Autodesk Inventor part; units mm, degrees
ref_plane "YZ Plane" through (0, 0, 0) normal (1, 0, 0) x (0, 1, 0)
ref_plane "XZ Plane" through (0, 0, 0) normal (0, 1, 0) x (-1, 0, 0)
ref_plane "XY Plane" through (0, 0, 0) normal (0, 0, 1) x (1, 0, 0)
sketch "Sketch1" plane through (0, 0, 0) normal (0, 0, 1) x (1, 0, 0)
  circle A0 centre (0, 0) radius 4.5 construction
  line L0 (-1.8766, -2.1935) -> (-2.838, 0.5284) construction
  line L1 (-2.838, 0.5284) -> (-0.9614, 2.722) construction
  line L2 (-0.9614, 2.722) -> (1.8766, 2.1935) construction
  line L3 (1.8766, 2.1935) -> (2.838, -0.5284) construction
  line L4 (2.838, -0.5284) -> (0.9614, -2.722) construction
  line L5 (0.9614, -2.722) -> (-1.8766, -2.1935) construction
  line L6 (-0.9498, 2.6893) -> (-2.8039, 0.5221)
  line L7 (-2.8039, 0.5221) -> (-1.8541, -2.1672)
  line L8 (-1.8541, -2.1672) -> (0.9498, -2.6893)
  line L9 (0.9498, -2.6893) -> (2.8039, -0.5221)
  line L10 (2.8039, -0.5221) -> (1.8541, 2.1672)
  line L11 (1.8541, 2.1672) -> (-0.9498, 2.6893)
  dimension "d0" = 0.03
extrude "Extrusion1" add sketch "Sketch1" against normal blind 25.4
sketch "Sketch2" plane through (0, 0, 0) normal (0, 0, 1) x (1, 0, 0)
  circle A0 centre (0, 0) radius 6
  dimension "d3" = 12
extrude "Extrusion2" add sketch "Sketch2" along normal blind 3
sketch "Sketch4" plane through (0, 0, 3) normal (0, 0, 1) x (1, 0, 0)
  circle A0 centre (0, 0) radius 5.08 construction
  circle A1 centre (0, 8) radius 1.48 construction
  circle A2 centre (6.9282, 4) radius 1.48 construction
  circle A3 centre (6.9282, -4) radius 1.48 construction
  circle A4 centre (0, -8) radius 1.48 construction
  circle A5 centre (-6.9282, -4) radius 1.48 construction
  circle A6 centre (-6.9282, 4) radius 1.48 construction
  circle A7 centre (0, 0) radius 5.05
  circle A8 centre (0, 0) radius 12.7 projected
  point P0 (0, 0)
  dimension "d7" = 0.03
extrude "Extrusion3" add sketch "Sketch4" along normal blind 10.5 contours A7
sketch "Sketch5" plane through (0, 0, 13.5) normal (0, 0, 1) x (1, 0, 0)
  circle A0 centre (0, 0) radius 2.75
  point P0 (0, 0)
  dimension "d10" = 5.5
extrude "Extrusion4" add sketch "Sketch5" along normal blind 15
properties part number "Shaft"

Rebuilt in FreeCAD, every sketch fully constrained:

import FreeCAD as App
import Part
import Sketcher
from FreeCAD import Vector

doc = App.newDocument("Part")
body = doc.addObject("PartDesign::Body", "Body")

# Sketch on XY plane
sketch1 = body.newObject("Sketcher::SketchObject", "Sketch")
sketch1.AttachmentSupport = (doc.getObject("XY_Plane"), [""])
sketch1.MapMode = "FlatFace"
sketch1.addGeometry([
    Part.LineSegment(Vector(1.9, 2.2, 0), Vector(-0.9, 2.7, 0)),  # 0
    Part.LineSegment(Vector(-0.9, 2.7, 0), Vector(-2.8, 0.5, 0)),  # 1
    Part.LineSegment(Vector(-2.8, 0.5, 0), Vector(-1.9, -2.2, 0)),  # 2
    Part.LineSegment(Vector(-1.9, -2.2, 0), Vector(0.9, -2.7, 0)),  # 3
    Part.LineSegment(Vector(0.9, -2.7, 0), Vector(2.8, -0.5, 0)),  # 4
    Part.LineSegment(Vector(2.8, -0.5, 0), Vector(1.9, 2.2, 0)),  # 5
], False)
sketch1.addConstraint([
    Sketcher.Constraint("Coincident", 0, 2, 1, 1),
    Sketcher.Constraint("Coincident", 1, 2, 2, 1),
    Sketcher.Constraint("Coincident", 2, 2, 3, 1),
    Sketcher.Constraint("Coincident", 3, 2, 4, 1),
    Sketcher.Constraint("Coincident", 4, 2, 5, 1),
    Sketcher.Constraint("Coincident", 5, 2, 0, 1),
    Sketcher.Constraint("Symmetric", 0, 2, 3, 2, -1, 1),
    Sketcher.Constraint("Symmetric", 1, 2, 4, 2, -1, 1),
    Sketcher.Constraint("Symmetric", 2, 2, 5, 2, -1, 1),
    Sketcher.Constraint("Equal", 0, 1),
    Sketcher.Constraint("Equal", 1, 2),
    Sketcher.Constraint("Distance", 0, 2.852),
    Sketcher.Constraint("DistanceX", 1, 2, -1, 1, 2.804),
    Sketcher.Constraint("DistanceY", -1, 1, 1, 2, 0.522),
    Sketcher.Constraint("DistanceX", 2, 2, -1, 1, 1.854),
])
pad1 = body.newObject("PartDesign::Pad", "Pad")
pad1.Profile = sketch1
pad1.Length = 25.4
pad1.Reversed = True

# Sketch on XY plane
sketch2 = body.newObject("Sketcher::SketchObject", "Sketch001")
sketch2.AttachmentSupport = (doc.getObject("XY_Plane"), [""])
sketch2.MapMode = "FlatFace"
sketch2.addGeometry(Part.Circle(Vector(0, 0, 0), Vector(0, 0, 1), 6), False)
sketch2.addConstraint([
    Sketcher.Constraint("Coincident", 0, 3, -1, 1),
    Sketcher.Constraint("Diameter", 0, 12.0),
])
pad2 = body.newObject("PartDesign::Pad", "Pad001")
pad2.Profile = sketch2
pad2.Length = 3

# Sketch on XY plane
sketch3 = body.newObject("Sketcher::SketchObject", "Sketch002")
sketch3.AttachmentSupport = (doc.getObject("XY_Plane"), [""])
sketch3.MapMode = "FlatFace"
sketch3.AttachmentOffset = App.Placement(Vector(0, 0, 3), App.Rotation())
sketch3.addGeometry(Part.Circle(Vector(0, 0, 0), Vector(0, 0, 1), 5), False)
sketch3.addConstraint([
    Sketcher.Constraint("Coincident", 0, 3, -1, 1),
    Sketcher.Constraint("Diameter", 0, 10.1),
])
pad3 = body.newObject("PartDesign::Pad", "Pad002")
pad3.Profile = sketch3
pad3.Length = 10.5

# Sketch on XY plane
sketch4 = body.newObject("Sketcher::SketchObject", "Sketch003")
sketch4.AttachmentSupport = (doc.getObject("XY_Plane"), [""])
sketch4.MapMode = "FlatFace"
sketch4.AttachmentOffset = App.Placement(Vector(0, 0, 13.5), App.Rotation())
sketch4.addGeometry(Part.Circle(Vector(0, 0, 0), Vector(0, 0, 1), 2.8), False)
sketch4.addConstraint([
    Sketcher.Constraint("Coincident", 0, 3, -1, 1),
    Sketcher.Constraint("Diameter", 0, 5.5),
])
pad4 = body.newObject("PartDesign::Pad", "Pad003")
pad4.Profile = sketch4
pad4.Length = 15

doc.recompute()
